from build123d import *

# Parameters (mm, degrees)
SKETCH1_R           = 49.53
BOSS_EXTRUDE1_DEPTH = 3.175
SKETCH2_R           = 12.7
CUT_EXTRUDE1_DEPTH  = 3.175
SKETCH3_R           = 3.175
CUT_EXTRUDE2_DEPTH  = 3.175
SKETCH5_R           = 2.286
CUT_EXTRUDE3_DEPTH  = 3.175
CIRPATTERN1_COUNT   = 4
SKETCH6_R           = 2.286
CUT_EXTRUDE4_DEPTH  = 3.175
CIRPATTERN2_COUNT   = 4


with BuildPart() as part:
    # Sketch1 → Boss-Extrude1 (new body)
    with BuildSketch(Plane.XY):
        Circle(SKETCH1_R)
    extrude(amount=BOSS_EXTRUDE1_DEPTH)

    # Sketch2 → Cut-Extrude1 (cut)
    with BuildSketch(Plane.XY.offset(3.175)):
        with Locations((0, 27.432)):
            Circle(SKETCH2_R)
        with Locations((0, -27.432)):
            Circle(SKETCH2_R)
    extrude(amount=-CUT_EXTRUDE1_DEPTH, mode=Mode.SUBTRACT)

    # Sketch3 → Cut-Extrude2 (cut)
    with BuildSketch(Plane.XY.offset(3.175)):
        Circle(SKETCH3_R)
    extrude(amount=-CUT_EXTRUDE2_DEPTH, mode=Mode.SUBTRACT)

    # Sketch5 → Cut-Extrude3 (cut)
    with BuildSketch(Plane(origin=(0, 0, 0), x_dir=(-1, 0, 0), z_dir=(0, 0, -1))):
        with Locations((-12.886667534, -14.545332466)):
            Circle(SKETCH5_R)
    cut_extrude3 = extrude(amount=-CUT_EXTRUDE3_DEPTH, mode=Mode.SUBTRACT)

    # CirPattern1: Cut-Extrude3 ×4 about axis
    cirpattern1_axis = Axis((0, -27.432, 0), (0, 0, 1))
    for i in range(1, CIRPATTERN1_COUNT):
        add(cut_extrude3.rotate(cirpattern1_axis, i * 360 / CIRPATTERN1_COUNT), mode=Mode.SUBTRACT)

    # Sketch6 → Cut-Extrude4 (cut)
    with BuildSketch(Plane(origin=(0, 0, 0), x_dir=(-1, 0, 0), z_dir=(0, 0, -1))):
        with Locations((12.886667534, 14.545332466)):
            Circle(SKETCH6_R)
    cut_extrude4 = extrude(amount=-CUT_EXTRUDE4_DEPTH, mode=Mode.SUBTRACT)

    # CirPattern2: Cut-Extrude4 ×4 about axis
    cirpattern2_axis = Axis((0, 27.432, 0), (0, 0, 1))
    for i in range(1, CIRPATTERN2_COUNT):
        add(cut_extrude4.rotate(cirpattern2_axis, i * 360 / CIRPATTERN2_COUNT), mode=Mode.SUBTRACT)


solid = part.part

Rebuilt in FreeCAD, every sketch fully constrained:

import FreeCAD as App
import Part
import Sketcher
Q = App.Units.Quantity

doc = App.newDocument("Part")
params = doc.addObject("Spreadsheet::Sheet", "Params")
for row, (alias, value) in enumerate([
    ("sketch1_diameter", "3.9 in"),
    ("pad1_length", "0.125 in"),
    ("sketch2_diameter", "1 in"),
    ("pocket1_length", "0.125 in"),
    ("sketch3_diameter", "0.25 in"),
    ("pocket2_length", "0.125 in"),
    ("sketch4_diameter", "0.18 in"),
    ("pocket3_length", "0.125 in"),
    ("sketch5_diameter", "0.18 in"),
    ("pocket4_length", "0.125 in"),
], start=1):
    params.set(f"A{row}", alias)
    params.set(f"B{row}", "=" + value)
    params.setAlias(f"B{row}", alias)

body = doc.addObject("PartDesign::Body", "Body")

sketch1 = body.newObject("Sketcher::SketchObject", "Sketch")
sketch1.AttachmentSupport = (doc.getObject("XY_Plane"), [""])
sketch1.MapMode = "FlatFace"
sketch1.addGeometry(Part.Circle(App.Vector(0, 0, 0), App.Vector(0, 0, 1), 50), False)
sketch1.addConstraint([
    Sketcher.Constraint("Coincident", 0, 3, -1, 1),
    Sketcher.Constraint("Diameter", 0, Q("3.9 in")),
])
sketch1.setExpression("Constraints[1]", "Params.sketch1_diameter")
pad1 = body.newObject("PartDesign::Pad", "Pad")
pad1.Profile = sketch1
pad1.setExpression("Length", "Params.pad1_length")

sketch2 = body.newObject("Sketcher::SketchObject", "Sketch001")
sketch2.AttachmentSupport = (doc.getObject("XY_Plane"), [""])
sketch2.MapMode = "FlatFace"
sketch2.AttachmentOffset = App.Placement(App.Vector(0, 0, 0.125 * 25.4), App.Rotation())
sketch2.addGeometry([
    Part.Circle(App.Vector(0, 27, 0), App.Vector(0, 0, 1), 13),
    Part.Circle(App.Vector(0, -27, 0), App.Vector(0, 0, 1), 13),
], False)
sketch2.addConstraint([
    Sketcher.Constraint("Equal", 0, 1),
    Sketcher.Constraint("Symmetric", 0, 3, 1, 3, -1, 1),
    Sketcher.Constraint("PointOnObject", 0, 3, -2),
    Sketcher.Constraint("Diameter", 0, Q("1 in")),
    Sketcher.Constraint("DistanceY", -1, 1, 0, 3, Q("1.08 in")),
])
sketch2.setExpression("Constraints[3]", "Params.sketch2_diameter")
pocket1 = body.newObject("PartDesign::Pocket", "Pocket")
pocket1.Profile = sketch2
pocket1.setExpression("Length", "Params.pocket1_length")

sketch3 = body.newObject("Sketcher::SketchObject", "Sketch002")
sketch3.AttachmentSupport = (doc.getObject("XY_Plane"), [""])
sketch3.MapMode = "FlatFace"
sketch3.AttachmentOffset = App.Placement(App.Vector(0, 0, 0.125 * 25.4), App.Rotation())
sketch3.addGeometry(Part.Circle(App.Vector(0, 0, 0), App.Vector(0, 0, 1), 3.2), False)
sketch3.addConstraint([
    Sketcher.Constraint("Coincident", 0, 3, -1, 1),
    Sketcher.Constraint("Diameter", 0, Q("0.25 in")),
])
sketch3.setExpression("Constraints[1]", "Params.sketch3_diameter")
pocket2 = body.newObject("PartDesign::Pocket", "Pocket001")
pocket2.Profile = sketch3
pocket2.setExpression("Length", "Params.pocket2_length")

sketch4 = body.newObject("Sketcher::SketchObject", "Sketch003")
sketch4.AttachmentSupport = (doc.getObject("XY_Plane"), [""])
sketch4.MapMode = "FlatFace"
sketch4.addGeometry(Part.Circle(App.Vector(12.9, -14.5, 0), App.Vector(0, 0, 1), 2.3), False)
sketch4.addConstraint([
    Sketcher.Constraint("Diameter", 0, Q("0.18 in")),
    Sketcher.Constraint("DistanceX", -1, 1, 0, 3, 12.886668),
    Sketcher.Constraint("DistanceY", 0, 3, -1, 1, 14.545332),
])
sketch4.setExpression("Constraints[0]", "Params.sketch4_diameter")
pocket3 = body.newObject("PartDesign::Pocket", "Pocket002")
pocket3.Profile = sketch4
pocket3.setExpression("Length", "Params.pocket3_length")
pocket3.Reversed = True
doc.recompute()

datumline = body.newObject("PartDesign::Line", "DatumLine")
datumline.Placement = App.Placement(App.Vector(0, -27.432, 0), App.Rotation(App.Vector(0, 0, 1), App.Vector(0, 0, 1)))
polarpattern = body.newObject("PartDesign::PolarPattern", "PolarPattern")
polarpattern.Originals = [pocket3]
polarpattern.Axis = (datumline, [""])
polarpattern.Angle = 360
polarpattern.Occurrences = 4
body.Tip = polarpattern

sketch5 = body.newObject("Sketcher::SketchObject", "Sketch004")
sketch5.AttachmentSupport = (doc.getObject("XY_Plane"), [""])
sketch5.MapMode = "FlatFace"
sketch5.addGeometry(Part.Circle(App.Vector(-12.9, 14.5, 0), App.Vector(0, 0, 1), 2.3), False)
sketch5.addConstraint([
    Sketcher.Constraint("Diameter", 0, Q("0.18 in")),
    Sketcher.Constraint("DistanceX", 0, 3, -1, 1, 12.886668),
    Sketcher.Constraint("DistanceY", -1, 1, 0, 3, 14.545332),
])
sketch5.setExpression("Constraints[0]", "Params.sketch5_diameter")
pocket4 = body.newObject("PartDesign::Pocket", "Pocket003")
pocket4.Profile = sketch5
pocket4.setExpression("Length", "Params.pocket4_length")
pocket4.Reversed = True
doc.recompute()

datumline2 = body.newObject("PartDesign::Line", "DatumLine001")
datumline2.Placement = App.Placement(App.Vector(0, 27.432, 0), App.Rotation(App.Vector(0, 0, 1), App.Vector(0, 0, 1)))
polarpattern2 = body.newObject("PartDesign::PolarPattern", "PolarPattern001")
polarpattern2.Originals = [pocket4]
polarpattern2.Axis = (datumline2, [""])
polarpattern2.Angle = 360
polarpattern2.Occurrences = 4
body.Tip = polarpattern2

doc.recompute()
